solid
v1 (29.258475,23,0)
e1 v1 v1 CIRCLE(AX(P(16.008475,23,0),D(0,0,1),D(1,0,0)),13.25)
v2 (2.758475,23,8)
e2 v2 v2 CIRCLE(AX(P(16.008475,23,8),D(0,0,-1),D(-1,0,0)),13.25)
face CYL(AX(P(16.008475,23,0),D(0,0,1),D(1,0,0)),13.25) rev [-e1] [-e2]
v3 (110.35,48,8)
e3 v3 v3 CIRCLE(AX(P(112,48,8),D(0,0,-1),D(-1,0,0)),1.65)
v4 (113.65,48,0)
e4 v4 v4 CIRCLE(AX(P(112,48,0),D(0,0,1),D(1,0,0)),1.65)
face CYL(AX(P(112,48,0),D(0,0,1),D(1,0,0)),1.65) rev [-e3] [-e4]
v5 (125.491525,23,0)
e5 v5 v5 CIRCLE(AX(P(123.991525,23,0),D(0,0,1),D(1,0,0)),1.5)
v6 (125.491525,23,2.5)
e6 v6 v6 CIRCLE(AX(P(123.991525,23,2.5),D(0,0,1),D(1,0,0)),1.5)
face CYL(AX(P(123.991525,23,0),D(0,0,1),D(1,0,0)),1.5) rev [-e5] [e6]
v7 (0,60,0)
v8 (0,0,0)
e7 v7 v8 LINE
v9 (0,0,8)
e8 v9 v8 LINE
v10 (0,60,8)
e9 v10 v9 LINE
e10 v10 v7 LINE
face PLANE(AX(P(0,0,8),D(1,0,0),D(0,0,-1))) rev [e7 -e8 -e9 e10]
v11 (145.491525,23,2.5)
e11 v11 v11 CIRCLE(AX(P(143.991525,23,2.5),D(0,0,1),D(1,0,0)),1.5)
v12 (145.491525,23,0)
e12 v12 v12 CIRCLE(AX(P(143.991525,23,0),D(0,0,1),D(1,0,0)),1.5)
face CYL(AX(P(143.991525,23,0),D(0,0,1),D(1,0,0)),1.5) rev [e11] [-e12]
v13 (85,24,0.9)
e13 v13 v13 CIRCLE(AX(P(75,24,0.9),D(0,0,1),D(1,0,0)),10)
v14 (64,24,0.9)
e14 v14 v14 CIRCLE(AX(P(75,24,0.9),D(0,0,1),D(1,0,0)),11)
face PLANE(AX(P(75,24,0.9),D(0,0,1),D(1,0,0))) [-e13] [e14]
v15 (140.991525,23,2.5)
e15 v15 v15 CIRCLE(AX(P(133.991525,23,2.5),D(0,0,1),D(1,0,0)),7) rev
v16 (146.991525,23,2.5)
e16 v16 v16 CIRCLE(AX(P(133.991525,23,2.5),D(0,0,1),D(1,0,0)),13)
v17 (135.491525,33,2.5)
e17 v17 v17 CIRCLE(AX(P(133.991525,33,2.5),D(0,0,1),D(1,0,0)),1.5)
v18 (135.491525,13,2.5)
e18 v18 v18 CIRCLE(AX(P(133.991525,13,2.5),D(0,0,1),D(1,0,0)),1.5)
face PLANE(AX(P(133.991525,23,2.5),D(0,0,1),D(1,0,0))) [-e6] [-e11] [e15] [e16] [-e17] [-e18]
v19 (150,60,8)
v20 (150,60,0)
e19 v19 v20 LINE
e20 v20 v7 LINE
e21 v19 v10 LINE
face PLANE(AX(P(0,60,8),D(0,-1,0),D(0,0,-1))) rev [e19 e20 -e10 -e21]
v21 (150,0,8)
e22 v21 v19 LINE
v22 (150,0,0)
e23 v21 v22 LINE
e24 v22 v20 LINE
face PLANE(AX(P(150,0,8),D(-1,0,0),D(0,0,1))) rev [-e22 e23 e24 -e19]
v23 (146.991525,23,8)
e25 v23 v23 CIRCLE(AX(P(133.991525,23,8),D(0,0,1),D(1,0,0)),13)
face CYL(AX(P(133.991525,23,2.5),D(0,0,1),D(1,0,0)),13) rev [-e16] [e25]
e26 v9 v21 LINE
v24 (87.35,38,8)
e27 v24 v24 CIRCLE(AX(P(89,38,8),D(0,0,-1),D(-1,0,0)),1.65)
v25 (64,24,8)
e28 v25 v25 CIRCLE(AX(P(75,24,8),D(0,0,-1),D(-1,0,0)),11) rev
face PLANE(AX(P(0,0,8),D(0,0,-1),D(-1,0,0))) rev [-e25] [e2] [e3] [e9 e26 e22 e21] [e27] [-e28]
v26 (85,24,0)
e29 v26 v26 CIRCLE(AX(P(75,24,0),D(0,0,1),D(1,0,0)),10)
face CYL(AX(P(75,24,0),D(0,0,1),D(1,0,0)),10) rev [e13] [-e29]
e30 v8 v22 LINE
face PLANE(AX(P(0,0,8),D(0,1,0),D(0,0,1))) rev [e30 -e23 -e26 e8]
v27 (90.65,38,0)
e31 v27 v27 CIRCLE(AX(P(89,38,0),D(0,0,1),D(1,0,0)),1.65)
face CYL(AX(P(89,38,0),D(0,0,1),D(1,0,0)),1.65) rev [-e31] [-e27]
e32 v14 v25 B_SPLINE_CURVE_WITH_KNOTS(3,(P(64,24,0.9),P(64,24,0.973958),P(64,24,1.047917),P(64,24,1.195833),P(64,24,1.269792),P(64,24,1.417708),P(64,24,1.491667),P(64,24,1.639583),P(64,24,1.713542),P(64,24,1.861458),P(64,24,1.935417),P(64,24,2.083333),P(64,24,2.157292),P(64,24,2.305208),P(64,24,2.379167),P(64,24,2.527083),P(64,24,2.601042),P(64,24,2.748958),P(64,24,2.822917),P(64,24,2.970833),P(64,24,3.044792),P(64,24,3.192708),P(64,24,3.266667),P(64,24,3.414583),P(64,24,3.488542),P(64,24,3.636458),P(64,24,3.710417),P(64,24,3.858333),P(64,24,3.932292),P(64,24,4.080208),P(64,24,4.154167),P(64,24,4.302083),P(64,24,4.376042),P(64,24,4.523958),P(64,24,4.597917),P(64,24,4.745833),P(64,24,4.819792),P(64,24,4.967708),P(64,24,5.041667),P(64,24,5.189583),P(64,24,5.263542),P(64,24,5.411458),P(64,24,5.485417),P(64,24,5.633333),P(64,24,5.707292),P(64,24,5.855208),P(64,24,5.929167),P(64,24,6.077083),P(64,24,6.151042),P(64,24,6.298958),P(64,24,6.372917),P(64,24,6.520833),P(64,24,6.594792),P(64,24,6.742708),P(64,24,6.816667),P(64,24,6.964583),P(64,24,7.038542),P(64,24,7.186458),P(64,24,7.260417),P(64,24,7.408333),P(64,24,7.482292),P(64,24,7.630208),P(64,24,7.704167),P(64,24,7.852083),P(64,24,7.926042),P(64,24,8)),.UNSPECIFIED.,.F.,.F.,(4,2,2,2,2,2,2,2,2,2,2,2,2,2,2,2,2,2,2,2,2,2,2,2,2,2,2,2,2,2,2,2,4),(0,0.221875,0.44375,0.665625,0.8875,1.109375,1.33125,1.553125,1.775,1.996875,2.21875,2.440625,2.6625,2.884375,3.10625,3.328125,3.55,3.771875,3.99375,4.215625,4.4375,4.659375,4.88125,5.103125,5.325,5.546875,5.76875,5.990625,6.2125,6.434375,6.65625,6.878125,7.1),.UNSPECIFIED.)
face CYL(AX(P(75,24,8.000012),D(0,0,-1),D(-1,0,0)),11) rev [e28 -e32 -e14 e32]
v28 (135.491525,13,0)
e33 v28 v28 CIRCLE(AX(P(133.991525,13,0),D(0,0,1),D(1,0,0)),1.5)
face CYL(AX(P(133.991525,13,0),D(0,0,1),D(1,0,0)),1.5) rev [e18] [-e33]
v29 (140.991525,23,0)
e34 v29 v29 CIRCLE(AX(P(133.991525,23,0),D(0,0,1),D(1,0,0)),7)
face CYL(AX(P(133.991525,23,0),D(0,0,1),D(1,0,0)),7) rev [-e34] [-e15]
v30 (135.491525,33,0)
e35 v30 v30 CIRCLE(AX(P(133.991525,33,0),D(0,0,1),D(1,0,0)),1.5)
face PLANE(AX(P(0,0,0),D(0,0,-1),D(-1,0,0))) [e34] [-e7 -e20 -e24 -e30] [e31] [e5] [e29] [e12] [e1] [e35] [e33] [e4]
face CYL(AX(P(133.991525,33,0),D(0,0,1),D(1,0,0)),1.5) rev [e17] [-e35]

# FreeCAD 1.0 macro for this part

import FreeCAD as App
import Part
import Sketcher
from FreeCAD import Vector
Q = App.Units.Quantity

doc = App.newDocument("Part")
params = doc.addObject("Spreadsheet::Sheet", "Params")
for row, (alias, value) in enumerate([
    ("sketch1_width", "150 mm"),
    ("sketch1_height", "60 mm"),
    ("pad1_length", "8 mm"),
    ("sketch2_diameter", "22 mm"),
    ("pocket1_length", "162.752898 mm"),
    ("pocket1_length2", "7.1 mm"),
    ("sketch3_diameter", "20 mm"),
    ("sketch4_diameter", "14 mm"),
    ("sketch5_diameter", "26 mm"),
    ("pocket4_length", "5.5 mm"),
    ("sketch6_diameter", "26.5 mm"),
    ("sketch7_diameter", "3.3 mm"),
    ("sketch8_diameter", "3 mm"),
], start=1):
    params.set(f"A{row}", alias)
    params.set(f"B{row}", "=" + value)
    params.setAlias(f"B{row}", alias)

body = doc.addObject("PartDesign::Body", "Body")

# Sketch on XY plane
sketch1 = body.newObject("Sketcher::SketchObject", "Sketch")
sketch1.AttachmentSupport = (doc.getObject("XY_Plane"), [""])
sketch1.MapMode = "FlatFace"
sketch1.addGeometry(Part.LineSegment(Vector(0, 60, 0), Vector(0, 0, 0)), False)
sketch1.addGeometry(Part.LineSegment(Vector(0, 0, 0), Vector(150, 0, 0)), False)
sketch1.addGeometry(Part.LineSegment(Vector(150, 0, 0), Vector(150, 60, 0)), False)
sketch1.addGeometry(Part.LineSegment(Vector(150, 60, 0), Vector(0, 60, 0)), False)
sketch1.addConstraint(Sketcher.Constraint("Coincident", 0, 2, 1, 1))
sketch1.addConstraint(Sketcher.Constraint("Coincident", 1, 2, 2, 1))
sketch1.addConstraint(Sketcher.Constraint("Coincident", 2, 2, 3, 1))
sketch1.addConstraint(Sketcher.Constraint("Coincident", 3, 2, 0, 1))
sketch1.addConstraint(Sketcher.Constraint("Vertical", 0))
sketch1.addConstraint(Sketcher.Constraint("Horizontal", 1))
sketch1.addConstraint(Sketcher.Constraint("Vertical", 2))
sketch1.addConstraint(Sketcher.Constraint("Horizontal", 3))
sketch1.addConstraint(Sketcher.Constraint("Coincident", 0, 2, -1, 1))
sketch1.addConstraint(Sketcher.Constraint("DistanceX", 1, 1, 1, 2, Q("150 mm")))
sketch1.addConstraint(Sketcher.Constraint("DistanceY", 0, 2, 0, 1, Q("60 mm")))
sketch1.setExpression("Constraints[9]", "Params.sketch1_width")
sketch1.setExpression("Constraints[10]", "Params.sketch1_height")
pad1 = body.newObject("PartDesign::Pad", "Pad")
pad1.Profile = sketch1
pad1.setExpression("Length", "Params.pad1_length")

# Sketch on XY plane
sketch2 = body.newObject("Sketcher::SketchObject", "Sketch001")
sketch2.AttachmentSupport = (doc.getObject("XY_Plane"), [""])
sketch2.MapMode = "FlatFace"
sketch2.AttachmentOffset = App.Placement(Vector(0, 0, 8), App.Rotation())
sketch2.addGeometry(Part.Circle(Vector(75, 24, 0), Vector(0, 0, 1), 11), False)
sketch2.addConstraint(Sketcher.Constraint("Diameter", 0, Q("22 mm")))
sketch2.addConstraint(Sketcher.Constraint("DistanceX", -1, 1, 0, 3, Q("75 mm")))
sketch2.addConstraint(Sketcher.Constraint("DistanceY", -1, 1, 0, 3, Q("24 mm")))
sketch2.setExpression("Constraints[0]", "Params.sketch2_diameter")
pocket1 = body.newObject("PartDesign::Pocket", "Pocket")
pocket1.Profile = sketch2
pocket1.Type = "TwoLengths"
pocket1.setExpression("Length", "Params.pocket1_length")
pocket1.setExpression("Length2", "Params.pocket1_length2")
pocket1.Reversed = True

# Sketch on XY plane
sketch3 = body.newObject("Sketcher::SketchObject", "Sketch002")
sketch3.AttachmentSupport = (doc.getObject("XY_Plane"), [""])
sketch3.MapMode = "FlatFace"
sketch3.AttachmentOffset = App.Placement(Vector(0, 0, 0.9), App.Rotation())
sketch3.addGeometry(Part.Circle(Vector(75, 24, 0), Vector(0, 0, 1), 10), False)
sketch3.addConstraint(Sketcher.Constraint("Diameter", 0, Q("20 mm")))
sketch3.addConstraint(Sketcher.Constraint("DistanceX", -1, 1, 0, 3, Q("75 mm")))
sketch3.addConstraint(Sketcher.Constraint("DistanceY", -1, 1, 0, 3, Q("24 mm")))
sketch3.setExpression("Constraints[0]", "Params.sketch3_diameter")
pocket2 = body.newObject("PartDesign::Pocket", "Pocket001")
pocket2.Profile = sketch3
pocket2.Type = "ThroughAll"

# Sketch on XY plane
sketch4 = body.newObject("Sketcher::SketchObject", "Sketch003")
sketch4.AttachmentSupport = (doc.getObject("XY_Plane"), [""])
sketch4.MapMode = "FlatFace"
sketch4.AttachmentOffset = App.Placement(Vector(0, 0, 8), App.Rotation())
sketch4.addGeometry(Part.Circle(Vector(134, 23, 0), Vector(0, 0, 1), 7), False)
sketch4.addConstraint(Sketcher.Constraint("Diameter", 0, Q("14 mm")))
sketch4.addConstraint(Sketcher.Constraint("DistanceY", -1, 1, 0, 3, Q("23 mm")))
sketch4.addConstraint(Sketcher.Constraint("DistanceX", -1, 1, 0, 3, Q("133.991525 mm")))
sketch4.setExpression("Constraints[0]", "Params.sketch4_diameter")
pocket3 = body.newObject("PartDesign::Pocket", "Pocket002")
pocket3.Profile = sketch4
pocket3.Type = "ThroughAll"

# Sketch on XY plane
sketch5 = body.newObject("Sketcher::SketchObject", "Sketch004")
sketch5.AttachmentSupport = (doc.getObject("XY_Plane"), [""])
sketch5.MapMode = "FlatFace"
sketch5.AttachmentOffset = App.Placement(Vector(0, 0, 8), App.Rotation())
sketch5.addGeometry(Part.Circle(Vector(134, 23, 0), Vector(0, 0, 1), 13), False)
sketch5.addConstraint(Sketcher.Constraint("Diameter", 0, Q("26 mm")))
sketch5.addConstraint(Sketcher.Constraint("DistanceY", -1, 1, 0, 3, Q("23 mm")))
sketch5.addConstraint(Sketcher.Constraint("DistanceX", -1, 1, 0, 3, Q("133.991525 mm")))
sketch5.setExpression("Constraints[0]", "Params.sketch5_diameter")
pocket4 = body.newObject("PartDesign::Pocket", "Pocket003")
pocket4.Profile = sketch5
pocket4.setExpression("Length", "Params.pocket4_length")

# Sketch on XY plane
sketch6 = body.newObject("Sketcher::SketchObject", "Sketch005")
sketch6.AttachmentSupport = (doc.getObject("XY_Plane"), [""])
sketch6.MapMode = "FlatFace"
sketch6.AttachmentOffset = App.Placement(Vector(0, 0, 8), App.Rotation())
sketch6.addGeometry(Part.Circle(Vector(16, 23, 0), Vector(0, 0, 1), 13), False)
sketch6.addConstraint(Sketcher.Constraint("Diameter", 0, Q("26.5 mm")))
sketch6.addConstraint(Sketcher.Constraint("DistanceY", -1, 1, 0, 3, Q("23 mm")))
sketch6.addConstraint(Sketcher.Constraint("DistanceX", -1, 1, 0, 3, Q("16.008475 mm")))
sketch6.setExpression("Constraints[0]", "Params.sketch6_diameter")
pocket5 = body.newObject("PartDesign::Pocket", "Pocket004")
pocket5.Profile = sketch6
pocket5.Type = "ThroughAll"
pocket5.Midplane = True

# Sketch on XY plane
sketch7 = body.newObject("Sketcher::SketchObject", "Sketch006")
sketch7.AttachmentSupport = (doc.getObject("XY_Plane"), [""])
sketch7.MapMode = "FlatFace"
sketch7.AttachmentOffset = App.Placement(Vector(0, 0, 8), App.Rotation())
sketch7.addGeometry(Part.Circle(Vector(89, 38, 0), Vector(0, 0, 1), 1.6), False)
sketch7.addGeometry(Part.Circle(Vector(112, 48, 0), Vector(0, 0, 1), 1.6), False)
sketch7.addConstraint(Sketcher.Constraint("Equal", 0, 1))
sketch7.addConstraint(Sketcher.Constraint("Diameter", 0, Q("3.3 mm")))
sketch7.addConstraint(Sketcher.Constraint("DistanceX", -1, 1, 0, 3, Q("89 mm")))
sketch7.addConstraint(Sketcher.Constraint("DistanceY", -1, 1, 0, 3, Q("38 mm")))
sketch7.addConstraint(Sketcher.Constraint("DistanceX", -1, 1, 1, 3, Q("112 mm")))
sketch7.addConstraint(Sketcher.Constraint("DistanceY", -1, 1, 1, 3, Q("48 mm")))
sketch7.setExpression("Constraints[1]", "Params.sketch7_diameter")
pocket6 = body.newObject("PartDesign::Pocket", "Pocket005")
pocket6.Profile = sketch7
pocket6.Type = "ThroughAll"
pocket6.Midplane = True

# Sketch on XY plane
sketch8 = body.newObject("Sketcher::SketchObject", "Sketch007")
sketch8.AttachmentSupport = (doc.getObject("XY_Plane"), [""])
sketch8.MapMode = "FlatFace"
sketch8.AttachmentOffset = App.Placement(Vector(0, 0, 2.5), App.Rotation())
sketch8.addGeometry(Part.Circle(Vector(134, 13, 0), Vector(0, 0, 1), 1.5), False)
sketch8.addGeometry(Part.Circle(Vector(124, 23, 0), Vector(0, 0, 1), 1.5), False)
sketch8.addGeometry(Part.Circle(Vector(134, 33, 0), Vector(0, 0, 1), 1.5), False)
sketch8.addGeometry(Part.Circle(Vector(144, 23, 0), Vector(0, 0, 1), 1.5), False)
sketch8.addConstraint(Sketcher.Constraint("Equal", 0, 1))
sketch8.addConstraint(Sketcher.Constraint("Equal", 1, 2))
sketch8.addConstraint(Sketcher.Constraint("Equal", 2, 3))
sketch8.addConstraint(Sketcher.Constraint("Horizontal", 1, 3, 3, 3))
sketch8.addConstraint(Sketcher.Constraint("Vertical", 0, 3, 2, 3))
sketch8.addConstraint(Sketcher.Constraint("Diameter", 0, Q("3 mm")))
sketch8.addConstraint(Sketcher.Constraint("DistanceY", -1, 1, 0, 3, Q("13 mm")))
sketch8.addConstraint(Sketcher.Constraint("DistanceY", -1, 1, 1, 3, Q("23 mm")))
sketch8.addConstraint(Sketcher.Constraint("DistanceY", -1, 1, 2, 3, Q("33 mm")))
sketch8.addConstraint(Sketcher.Constraint("DistanceX", 1, 3, 0, 3, Q("10 mm")))
sketch8.addConstraint(Sketcher.Constraint("DistanceX", 0, 3, 3, 3, Q("10 mm")))
sketch8.addConstraint(Sketcher.Constraint("DistanceX", -1, 1, 0, 3, Q("133.991525 mm")))
sketch8.setExpression("Constraints[5]", "Params.sketch8_diameter")
pocket7 = body.newObject("PartDesign::Pocket", "Pocket006")
pocket7.Profile = sketch8
pocket7.Type = "ThroughAll"
pocket7.Midplane = True

doc.recompute()
